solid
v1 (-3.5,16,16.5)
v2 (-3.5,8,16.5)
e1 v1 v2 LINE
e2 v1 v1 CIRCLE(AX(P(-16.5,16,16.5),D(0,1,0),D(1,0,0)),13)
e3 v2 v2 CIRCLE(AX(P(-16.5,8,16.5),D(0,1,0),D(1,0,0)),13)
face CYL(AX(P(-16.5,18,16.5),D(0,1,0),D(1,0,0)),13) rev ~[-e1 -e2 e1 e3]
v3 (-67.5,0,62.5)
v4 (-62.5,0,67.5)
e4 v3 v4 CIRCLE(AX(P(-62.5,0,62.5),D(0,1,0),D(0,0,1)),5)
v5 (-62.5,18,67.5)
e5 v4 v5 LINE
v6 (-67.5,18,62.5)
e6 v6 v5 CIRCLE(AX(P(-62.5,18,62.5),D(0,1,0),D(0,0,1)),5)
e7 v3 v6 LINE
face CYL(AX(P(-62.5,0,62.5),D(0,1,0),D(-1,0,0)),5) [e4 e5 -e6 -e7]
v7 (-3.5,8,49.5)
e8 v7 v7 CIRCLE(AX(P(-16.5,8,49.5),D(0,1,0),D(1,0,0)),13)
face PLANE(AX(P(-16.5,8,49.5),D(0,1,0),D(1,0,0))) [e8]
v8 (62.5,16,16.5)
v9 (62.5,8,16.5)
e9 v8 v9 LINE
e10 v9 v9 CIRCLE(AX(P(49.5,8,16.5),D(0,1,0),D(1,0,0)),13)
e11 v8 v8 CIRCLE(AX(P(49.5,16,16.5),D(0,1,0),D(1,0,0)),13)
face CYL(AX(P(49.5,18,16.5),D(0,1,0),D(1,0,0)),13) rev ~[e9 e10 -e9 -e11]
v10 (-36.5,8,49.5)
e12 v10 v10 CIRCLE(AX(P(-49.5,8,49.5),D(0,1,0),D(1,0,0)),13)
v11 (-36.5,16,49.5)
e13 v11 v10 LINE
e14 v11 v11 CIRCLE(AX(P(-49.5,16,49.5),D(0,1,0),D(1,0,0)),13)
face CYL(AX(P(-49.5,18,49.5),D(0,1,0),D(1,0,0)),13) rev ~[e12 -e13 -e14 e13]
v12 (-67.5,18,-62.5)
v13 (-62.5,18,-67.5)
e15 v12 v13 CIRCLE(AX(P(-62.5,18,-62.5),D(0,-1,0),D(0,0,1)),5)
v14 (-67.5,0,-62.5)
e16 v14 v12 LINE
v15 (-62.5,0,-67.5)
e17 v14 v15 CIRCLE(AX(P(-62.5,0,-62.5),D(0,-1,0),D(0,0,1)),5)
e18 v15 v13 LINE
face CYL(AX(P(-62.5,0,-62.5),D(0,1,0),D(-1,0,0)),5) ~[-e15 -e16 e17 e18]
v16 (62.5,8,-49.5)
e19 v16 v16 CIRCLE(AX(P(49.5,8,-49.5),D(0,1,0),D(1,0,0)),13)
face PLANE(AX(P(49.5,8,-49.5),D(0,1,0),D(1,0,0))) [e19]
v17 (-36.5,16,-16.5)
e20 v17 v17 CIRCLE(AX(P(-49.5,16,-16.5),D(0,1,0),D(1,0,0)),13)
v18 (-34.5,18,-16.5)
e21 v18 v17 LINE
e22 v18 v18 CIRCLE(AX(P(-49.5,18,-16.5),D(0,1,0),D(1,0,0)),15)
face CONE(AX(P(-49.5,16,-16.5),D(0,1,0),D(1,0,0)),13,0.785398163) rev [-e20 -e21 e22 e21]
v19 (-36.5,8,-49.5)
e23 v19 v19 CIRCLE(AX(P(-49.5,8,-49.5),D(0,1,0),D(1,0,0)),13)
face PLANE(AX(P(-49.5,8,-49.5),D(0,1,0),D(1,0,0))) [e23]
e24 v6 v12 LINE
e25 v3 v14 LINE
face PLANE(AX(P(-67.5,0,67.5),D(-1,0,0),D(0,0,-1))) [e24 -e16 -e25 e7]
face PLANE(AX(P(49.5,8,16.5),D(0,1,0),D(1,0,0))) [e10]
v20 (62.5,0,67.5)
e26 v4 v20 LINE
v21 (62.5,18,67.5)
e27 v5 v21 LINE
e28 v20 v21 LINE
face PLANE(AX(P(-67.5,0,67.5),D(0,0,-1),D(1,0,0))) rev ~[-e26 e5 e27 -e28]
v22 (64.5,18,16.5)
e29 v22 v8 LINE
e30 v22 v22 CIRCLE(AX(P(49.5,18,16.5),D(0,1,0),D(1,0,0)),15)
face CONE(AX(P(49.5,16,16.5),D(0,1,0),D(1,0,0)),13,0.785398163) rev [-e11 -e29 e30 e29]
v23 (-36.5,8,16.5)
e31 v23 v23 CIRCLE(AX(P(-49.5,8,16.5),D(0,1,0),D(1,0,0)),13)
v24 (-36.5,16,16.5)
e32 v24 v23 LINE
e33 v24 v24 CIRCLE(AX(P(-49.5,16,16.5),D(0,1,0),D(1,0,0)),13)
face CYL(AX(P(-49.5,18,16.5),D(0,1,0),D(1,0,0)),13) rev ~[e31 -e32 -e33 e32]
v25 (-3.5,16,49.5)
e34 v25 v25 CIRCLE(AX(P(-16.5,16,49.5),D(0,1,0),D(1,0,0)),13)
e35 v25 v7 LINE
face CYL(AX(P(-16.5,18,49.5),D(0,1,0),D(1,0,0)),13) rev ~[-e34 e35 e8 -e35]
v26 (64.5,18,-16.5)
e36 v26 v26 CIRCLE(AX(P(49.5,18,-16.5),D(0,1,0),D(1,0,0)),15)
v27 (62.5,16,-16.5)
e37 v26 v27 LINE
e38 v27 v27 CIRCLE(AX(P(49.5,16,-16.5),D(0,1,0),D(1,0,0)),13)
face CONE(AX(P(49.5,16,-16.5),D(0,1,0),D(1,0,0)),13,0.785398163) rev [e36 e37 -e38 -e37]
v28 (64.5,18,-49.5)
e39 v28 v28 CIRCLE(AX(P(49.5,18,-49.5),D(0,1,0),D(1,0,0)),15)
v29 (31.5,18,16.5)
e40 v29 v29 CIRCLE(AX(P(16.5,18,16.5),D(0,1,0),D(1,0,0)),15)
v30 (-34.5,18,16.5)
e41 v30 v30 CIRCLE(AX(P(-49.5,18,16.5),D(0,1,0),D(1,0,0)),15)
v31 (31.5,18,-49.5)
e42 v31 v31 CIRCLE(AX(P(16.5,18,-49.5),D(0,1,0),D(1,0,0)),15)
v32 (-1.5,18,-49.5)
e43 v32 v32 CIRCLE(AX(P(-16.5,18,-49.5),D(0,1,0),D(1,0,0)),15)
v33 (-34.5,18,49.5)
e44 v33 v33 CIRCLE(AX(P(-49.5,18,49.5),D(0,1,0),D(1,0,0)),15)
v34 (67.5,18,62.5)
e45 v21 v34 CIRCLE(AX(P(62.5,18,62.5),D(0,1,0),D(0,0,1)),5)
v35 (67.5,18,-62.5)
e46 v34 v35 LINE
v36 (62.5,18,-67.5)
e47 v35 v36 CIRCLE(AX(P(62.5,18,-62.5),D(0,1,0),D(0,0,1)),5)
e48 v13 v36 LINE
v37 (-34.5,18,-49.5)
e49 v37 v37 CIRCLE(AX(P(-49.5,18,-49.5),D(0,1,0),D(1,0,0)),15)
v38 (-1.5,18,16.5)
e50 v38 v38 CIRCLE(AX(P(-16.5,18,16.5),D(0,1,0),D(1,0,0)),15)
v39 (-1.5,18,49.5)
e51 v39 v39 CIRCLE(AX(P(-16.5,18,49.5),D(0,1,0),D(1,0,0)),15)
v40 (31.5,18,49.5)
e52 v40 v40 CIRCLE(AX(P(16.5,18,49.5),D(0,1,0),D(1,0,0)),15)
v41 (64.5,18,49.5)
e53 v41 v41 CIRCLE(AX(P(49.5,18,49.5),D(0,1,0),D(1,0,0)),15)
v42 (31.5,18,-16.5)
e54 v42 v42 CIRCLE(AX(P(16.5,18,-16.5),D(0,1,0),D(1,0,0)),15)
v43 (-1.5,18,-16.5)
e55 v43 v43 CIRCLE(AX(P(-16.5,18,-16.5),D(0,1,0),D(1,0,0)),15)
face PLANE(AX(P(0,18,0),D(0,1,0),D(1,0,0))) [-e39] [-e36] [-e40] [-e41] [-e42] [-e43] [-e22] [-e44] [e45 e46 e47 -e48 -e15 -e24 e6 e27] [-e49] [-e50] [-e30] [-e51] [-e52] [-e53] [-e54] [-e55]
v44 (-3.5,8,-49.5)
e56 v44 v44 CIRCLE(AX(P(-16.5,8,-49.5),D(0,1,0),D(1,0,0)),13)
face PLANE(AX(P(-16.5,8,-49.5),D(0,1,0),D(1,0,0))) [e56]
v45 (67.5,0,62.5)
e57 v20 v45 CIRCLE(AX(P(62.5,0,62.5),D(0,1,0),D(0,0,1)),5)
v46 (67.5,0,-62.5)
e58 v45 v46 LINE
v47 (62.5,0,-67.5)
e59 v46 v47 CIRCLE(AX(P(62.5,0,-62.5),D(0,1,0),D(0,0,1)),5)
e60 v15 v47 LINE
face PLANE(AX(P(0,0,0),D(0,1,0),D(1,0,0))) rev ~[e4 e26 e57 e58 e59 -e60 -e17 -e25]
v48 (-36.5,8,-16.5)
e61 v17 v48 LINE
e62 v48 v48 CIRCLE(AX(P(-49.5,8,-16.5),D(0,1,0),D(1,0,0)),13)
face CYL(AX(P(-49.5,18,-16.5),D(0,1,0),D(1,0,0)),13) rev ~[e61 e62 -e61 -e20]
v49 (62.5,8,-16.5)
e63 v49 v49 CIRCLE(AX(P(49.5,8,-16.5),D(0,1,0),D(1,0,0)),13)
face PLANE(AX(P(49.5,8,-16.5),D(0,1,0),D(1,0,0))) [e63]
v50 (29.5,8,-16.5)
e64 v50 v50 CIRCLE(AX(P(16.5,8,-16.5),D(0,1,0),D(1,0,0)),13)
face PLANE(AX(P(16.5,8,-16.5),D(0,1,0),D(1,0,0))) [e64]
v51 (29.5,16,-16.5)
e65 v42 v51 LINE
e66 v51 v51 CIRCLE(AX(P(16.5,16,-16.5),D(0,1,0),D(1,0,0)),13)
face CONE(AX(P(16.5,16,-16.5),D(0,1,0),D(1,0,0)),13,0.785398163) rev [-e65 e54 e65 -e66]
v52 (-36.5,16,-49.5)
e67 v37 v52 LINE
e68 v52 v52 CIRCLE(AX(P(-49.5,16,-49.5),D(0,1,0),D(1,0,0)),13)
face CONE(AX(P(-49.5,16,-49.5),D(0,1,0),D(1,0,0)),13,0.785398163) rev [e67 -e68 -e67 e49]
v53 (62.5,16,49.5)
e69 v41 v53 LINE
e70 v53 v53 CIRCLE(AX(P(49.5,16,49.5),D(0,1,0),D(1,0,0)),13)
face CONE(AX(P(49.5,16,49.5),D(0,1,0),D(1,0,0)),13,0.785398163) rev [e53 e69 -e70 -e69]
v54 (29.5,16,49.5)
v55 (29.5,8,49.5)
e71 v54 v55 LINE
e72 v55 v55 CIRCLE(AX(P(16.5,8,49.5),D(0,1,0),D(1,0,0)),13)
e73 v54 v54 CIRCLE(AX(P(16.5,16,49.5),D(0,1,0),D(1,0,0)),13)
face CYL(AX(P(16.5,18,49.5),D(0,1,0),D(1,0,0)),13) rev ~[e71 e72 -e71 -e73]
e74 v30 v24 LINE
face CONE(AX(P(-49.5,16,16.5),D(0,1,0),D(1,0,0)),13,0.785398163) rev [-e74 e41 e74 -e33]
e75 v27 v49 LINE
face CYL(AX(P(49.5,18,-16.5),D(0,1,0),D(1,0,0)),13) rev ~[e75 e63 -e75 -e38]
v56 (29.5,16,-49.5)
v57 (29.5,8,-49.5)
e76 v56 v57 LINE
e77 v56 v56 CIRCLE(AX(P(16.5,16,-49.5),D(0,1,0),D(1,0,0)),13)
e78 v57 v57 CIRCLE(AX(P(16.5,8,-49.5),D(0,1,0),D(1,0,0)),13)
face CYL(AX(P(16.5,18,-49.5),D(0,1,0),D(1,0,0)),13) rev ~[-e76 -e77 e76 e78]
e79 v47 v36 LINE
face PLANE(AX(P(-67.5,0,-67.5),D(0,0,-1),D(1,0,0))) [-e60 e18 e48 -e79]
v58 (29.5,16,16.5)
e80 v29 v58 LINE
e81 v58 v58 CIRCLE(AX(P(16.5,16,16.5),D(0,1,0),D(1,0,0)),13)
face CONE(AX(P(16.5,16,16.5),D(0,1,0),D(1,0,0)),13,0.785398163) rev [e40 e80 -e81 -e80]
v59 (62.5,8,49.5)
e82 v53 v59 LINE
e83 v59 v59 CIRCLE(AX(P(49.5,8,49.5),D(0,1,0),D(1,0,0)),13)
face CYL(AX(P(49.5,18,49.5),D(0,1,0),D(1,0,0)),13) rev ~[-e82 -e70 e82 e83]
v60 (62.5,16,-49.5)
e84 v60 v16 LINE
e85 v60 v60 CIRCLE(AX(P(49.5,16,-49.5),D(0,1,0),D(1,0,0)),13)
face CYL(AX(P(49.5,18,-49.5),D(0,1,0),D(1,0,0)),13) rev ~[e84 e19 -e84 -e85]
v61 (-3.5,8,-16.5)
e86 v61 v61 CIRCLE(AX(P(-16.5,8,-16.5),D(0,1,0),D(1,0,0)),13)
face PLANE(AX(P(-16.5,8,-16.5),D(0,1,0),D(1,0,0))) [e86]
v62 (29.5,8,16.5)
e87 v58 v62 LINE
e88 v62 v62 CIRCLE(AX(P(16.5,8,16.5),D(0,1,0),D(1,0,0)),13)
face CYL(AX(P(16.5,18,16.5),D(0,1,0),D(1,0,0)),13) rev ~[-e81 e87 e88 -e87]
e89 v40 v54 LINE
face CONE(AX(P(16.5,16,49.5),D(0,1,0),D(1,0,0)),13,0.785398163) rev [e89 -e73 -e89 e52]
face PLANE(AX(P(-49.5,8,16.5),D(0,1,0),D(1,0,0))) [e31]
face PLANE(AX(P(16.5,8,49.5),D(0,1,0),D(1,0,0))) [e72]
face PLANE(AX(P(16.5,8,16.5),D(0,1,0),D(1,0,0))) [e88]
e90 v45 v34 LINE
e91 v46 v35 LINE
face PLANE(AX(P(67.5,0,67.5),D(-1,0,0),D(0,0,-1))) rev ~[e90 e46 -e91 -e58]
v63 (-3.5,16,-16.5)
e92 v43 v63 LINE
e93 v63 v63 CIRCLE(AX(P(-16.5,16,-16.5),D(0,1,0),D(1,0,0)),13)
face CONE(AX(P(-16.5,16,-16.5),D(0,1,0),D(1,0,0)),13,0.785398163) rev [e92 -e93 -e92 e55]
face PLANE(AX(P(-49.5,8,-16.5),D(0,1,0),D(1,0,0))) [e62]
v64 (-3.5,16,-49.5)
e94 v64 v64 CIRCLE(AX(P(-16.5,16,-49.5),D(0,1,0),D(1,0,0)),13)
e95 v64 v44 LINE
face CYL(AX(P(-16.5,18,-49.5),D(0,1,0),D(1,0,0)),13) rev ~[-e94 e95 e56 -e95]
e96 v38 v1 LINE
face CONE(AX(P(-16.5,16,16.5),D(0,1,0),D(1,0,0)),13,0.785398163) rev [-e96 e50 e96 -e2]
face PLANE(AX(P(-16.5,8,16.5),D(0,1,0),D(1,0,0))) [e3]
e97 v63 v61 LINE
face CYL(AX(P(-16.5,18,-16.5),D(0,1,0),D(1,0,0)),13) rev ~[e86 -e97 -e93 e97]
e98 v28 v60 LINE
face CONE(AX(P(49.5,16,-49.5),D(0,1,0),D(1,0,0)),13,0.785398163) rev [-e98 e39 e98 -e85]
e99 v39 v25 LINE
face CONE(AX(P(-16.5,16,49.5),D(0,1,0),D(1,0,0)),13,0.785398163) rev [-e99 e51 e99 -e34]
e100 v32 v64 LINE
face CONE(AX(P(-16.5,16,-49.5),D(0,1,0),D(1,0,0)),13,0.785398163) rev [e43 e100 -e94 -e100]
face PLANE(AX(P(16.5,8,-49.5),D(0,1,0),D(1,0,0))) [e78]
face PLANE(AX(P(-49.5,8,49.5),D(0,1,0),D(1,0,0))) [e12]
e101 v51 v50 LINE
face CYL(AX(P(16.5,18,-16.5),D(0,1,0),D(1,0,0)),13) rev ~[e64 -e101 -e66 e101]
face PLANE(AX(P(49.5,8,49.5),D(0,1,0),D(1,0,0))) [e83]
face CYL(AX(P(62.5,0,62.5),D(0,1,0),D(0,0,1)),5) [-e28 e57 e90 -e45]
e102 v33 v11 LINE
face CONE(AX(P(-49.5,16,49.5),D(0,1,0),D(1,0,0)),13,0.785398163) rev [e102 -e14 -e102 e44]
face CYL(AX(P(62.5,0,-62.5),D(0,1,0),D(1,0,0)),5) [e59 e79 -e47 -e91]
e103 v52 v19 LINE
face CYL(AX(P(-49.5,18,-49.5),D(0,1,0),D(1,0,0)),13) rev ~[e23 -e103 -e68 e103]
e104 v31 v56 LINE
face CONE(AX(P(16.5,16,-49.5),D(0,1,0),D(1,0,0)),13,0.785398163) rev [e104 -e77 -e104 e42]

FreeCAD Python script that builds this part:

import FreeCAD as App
import Part
import Sketcher

V = App.Vector
Q = App.Units.Quantity


def edges_at(feature, points):
    """Names of the edges that pass closest to the given points."""
    edges = feature.Shape.Edges
    near = lambda p: min(range(len(edges)), key=lambda i: edges[i].distToShape(Part.Vertex(*p))[0])
    return sorted({f"Edge{near(p) + 1}" for p in points})


def add_polygon(sketch, points):
    """Adds a closed chain of lines whose ends are joined by coincident constraints."""
    first, n = sketch.GeometryCount, len(points)
    for a, b in zip(points, points[1:] + points[:1]):
        sketch.addGeometry(Part.LineSegment(App.Vector(*a, 0), App.Vector(*b, 0)), False)
    for i in range(n):
        sketch.addConstraint(Sketcher.Constraint("Coincident", first + i, 2, first + (i + 1) % n, 1))

doc = App.newDocument("Part")
body = doc.addObject("PartDesign::Body", "Body")

# Sketch on XZ plane
sketch1 = doc.addObject("Sketcher::SketchObject", "Sketch")
body.addObject(sketch1)
sketch1.AttachmentSupport = (doc.XZ_Plane, [""])
sketch1.MapMode = "FlatFace"
add_polygon(sketch1, [(-68, -68), (-68, 68), (68, 68), (68, -68)])  # lines 0-3
sketch1.addConstraint(Sketcher.Constraint("Vertical", 0))
sketch1.addConstraint(Sketcher.Constraint("Horizontal", 1))
sketch1.addConstraint(Sketcher.Constraint("Vertical", 2))
sketch1.addConstraint(Sketcher.Constraint("Horizontal", 3))
sketch1.addConstraint(Sketcher.Constraint("Symmetric", 0, 2, 2, 2, -1, 1))
sketch1.addConstraint(Sketcher.Constraint("Equal", 3, 0))
sketch1.addConstraint(Sketcher.Constraint("DistanceX", 1, 1, 1, 2, Q("135 mm")))
pad1 = doc.addObject("PartDesign::Pad", "Pad")
body.addObject(pad1)
pad1.Profile = sketch1
pad1.Length = 18
pad1.Reversed = True
doc.recompute()

fillet = doc.addObject("PartDesign::Fillet", "Fillet")
body.addObject(fillet)
fillet.Base = (pad1, edges_at(pad1, [
    (67.5, 9, 67.5),
    (-67.5, 9, 67.5),
    (-67.5, 9, -67.5),
    (67.5, 9, -67.5),
]))
fillet.Radius = 5

# Sketch on XZ plane
sketch2 = doc.addObject("Sketcher::SketchObject", "Sketch001")
body.addObject(sketch2)
sketch2.AttachmentSupport = (doc.XZ_Plane, [""])
sketch2.MapMode = "FlatFace"
sketch2.AttachmentOffset = App.Placement(V(0, 0, -18), App.Rotation())
sketch2.addGeometry(Part.Circle(V(-50, -50, 0), V(0, 0, 1), 13), False)
sketch2.addGeometry(Part.Circle(V(50, -50, 0), V(0, 0, 1), 13), False)
sketch2.addGeometry(Part.Circle(V(50, 50, 0), V(0, 0, 1), 13), False)
sketch2.addGeometry(Part.Circle(V(-50, 50, 0), V(0, 0, 1), 13), False)
sketch2.addGeometry(Part.Circle(V(-16, -50, 0), V(0, 0, 1), 13), False)
sketch2.addGeometry(Part.Circle(V(16, -50, 0), V(0, 0, 1), 13), False)
sketch2.addGeometry(Part.Circle(V(-16, -16, 0), V(0, 0, 1), 13), False)
sketch2.addGeometry(Part.Circle(V(-50, -16, 0), V(0, 0, 1), 13), False)
sketch2.addGeometry(Part.Circle(V(-16, 50, 0), V(0, 0, 1), 13), False)
sketch2.addGeometry(Part.Circle(V(-50, 16, 0), V(0, 0, 1), 13), False)
sketch2.addGeometry(Part.Circle(V(-16, 16, 0), V(0, 0, 1), 13), False)
sketch2.addGeometry(Part.Circle(V(50, -16, 0), V(0, 0, 1), 13), False)
sketch2.addGeometry(Part.Circle(V(16, -16, 0), V(0, 0, 1), 13), False)
sketch2.addGeometry(Part.Circle(V(50, 16, 0), V(0, 0, 1), 13), False)
sketch2.addGeometry(Part.Circle(V(16, 16, 0), V(0, 0, 1), 13), False)
sketch2.addGeometry(Part.Circle(V(16, 50, 0), V(0, 0, 1), 13), False)
sketch2.addConstraint(Sketcher.Constraint("Equal", 0, 1))
sketch2.addConstraint(Sketcher.Constraint("Equal", 1, 2))
sketch2.addConstraint(Sketcher.Constraint("Equal", 2, 3))
sketch2.addConstraint(Sketcher.Constraint("Equal", 3, 4))
sketch2.addConstraint(Sketcher.Constraint("Equal", 4, 5))
sketch2.addConstraint(Sketcher.Constraint("Equal", 5, 6))
sketch2.addConstraint(Sketcher.Constraint("Equal", 6, 7))
sketch2.addConstraint(Sketcher.Constraint("Equal", 7, 8))
sketch2.addConstraint(Sketcher.Constraint("Equal", 8, 9))
sketch2.addConstraint(Sketcher.Constraint("Equal", 9, 10))
sketch2.addConstraint(Sketcher.Constraint("Equal", 10, 11))
sketch2.addConstraint(Sketcher.Constraint("Equal", 11, 12))
sketch2.addConstraint(Sketcher.Constraint("Equal", 12, 13))
sketch2.addConstraint(Sketcher.Constraint("Equal", 13, 14))
sketch2.addConstraint(Sketcher.Constraint("Equal", 14, 15))
sketch2.addConstraint(Sketcher.Constraint("Symmetric", 0, 3, 2, 3, -1, 1))
sketch2.addConstraint(Sketcher.Constraint("Symmetric", 1, 3, 3, 3, -1, 1))
sketch2.addConstraint(Sketcher.Constraint("Symmetric", 5, 3, 8, 3, -1, 1))
sketch2.addConstraint(Sketcher.Constraint("Symmetric", 9, 3, 11, 3, -1, 1))
sketch2.addConstraint(Sketcher.Constraint("Symmetric", 10, 3, 12, 3, -1, 1))
sketch2.addConstraint(Sketcher.Constraint("Symmetric", 7, 3, 13, 3, -1, 1))
sketch2.addConstraint(Sketcher.Constraint("Symmetric", 6, 3, 14, 3, -1, 1))
sketch2.addConstraint(Sketcher.Constraint("Symmetric", 4, 3, 15, 3, -1, 1))
sketch2.addConstraint(Sketcher.Constraint("Symmetric", 0, 3, 1, 3, -2))
sketch2.addConstraint(Sketcher.Constraint("Symmetric", 4, 3, 5, 3, -2))
sketch2.addConstraint(Sketcher.Constraint("Symmetric", 7, 3, 11, 3, -2))
sketch2.addConstraint(Sketcher.Constraint("Symmetric", 6, 3, 12, 3, -2))
sketch2.addConstraint(Sketcher.Constraint("Horizontal", 1, 3, 4, 3))
sketch2.addConstraint(Sketcher.Constraint("Horizontal", 6, 3, 7, 3))
sketch2.addConstraint(Sketcher.Constraint("Vertical", 4, 3, 6, 3))
sketch2.addConstraint(Sketcher.Constraint("Vertical", 3, 3, 7, 3))
sketch2.addConstraint(Sketcher.Constraint("Diameter", 0, Q("26 mm")))
sketch2.addConstraint(Sketcher.Constraint("DistanceX", 0, 3, 1, 3, Q("99 mm")))
sketch2.addConstraint(Sketcher.Constraint("DistanceY", 1, 3, 2, 3, Q("99 mm")))
sketch2.addConstraint(Sketcher.Constraint("DistanceX", 0, 3, 4, 3, Q("33 mm")))
sketch2.addConstraint(Sketcher.Constraint("DistanceY", 4, 3, 6, 3, Q("33 mm")))
pocket1 = doc.addObject("PartDesign::Pocket", "Pocket")
body.addObject(pocket1)
pocket1.Profile = sketch2
pocket1.Length = 10
pocket1.Reversed = True
doc.recompute()

chamfer = doc.addObject("PartDesign::Chamfer", "Chamfer")
body.addObject(chamfer)
chamfer.Base = (pocket1, edges_at(pocket1, [
    (3.5, 18, -49.5),
    (-29.5, 18, -16.5),
    (-62.5, 18, -16.5),
    (-29.5, 18, 49.5),
    (-29.5, 18, -49.5),
    (-62.5, 18, 49.5),
    (36.5, 18, 49.5),
    (36.5, 18, -49.5),
    (3.5, 18, 49.5),
    (3.5, 18, 16.5),
    (36.5, 18, 16.5),
    (3.5, 18, -16.5),
    (36.5, 18, -16.5),
    (-29.5, 18, 16.5),
    (-62.5, 18, 16.5),
    (-62.5, 18, -49.5),
]))
chamfer.Size = 2

doc.recompute()
